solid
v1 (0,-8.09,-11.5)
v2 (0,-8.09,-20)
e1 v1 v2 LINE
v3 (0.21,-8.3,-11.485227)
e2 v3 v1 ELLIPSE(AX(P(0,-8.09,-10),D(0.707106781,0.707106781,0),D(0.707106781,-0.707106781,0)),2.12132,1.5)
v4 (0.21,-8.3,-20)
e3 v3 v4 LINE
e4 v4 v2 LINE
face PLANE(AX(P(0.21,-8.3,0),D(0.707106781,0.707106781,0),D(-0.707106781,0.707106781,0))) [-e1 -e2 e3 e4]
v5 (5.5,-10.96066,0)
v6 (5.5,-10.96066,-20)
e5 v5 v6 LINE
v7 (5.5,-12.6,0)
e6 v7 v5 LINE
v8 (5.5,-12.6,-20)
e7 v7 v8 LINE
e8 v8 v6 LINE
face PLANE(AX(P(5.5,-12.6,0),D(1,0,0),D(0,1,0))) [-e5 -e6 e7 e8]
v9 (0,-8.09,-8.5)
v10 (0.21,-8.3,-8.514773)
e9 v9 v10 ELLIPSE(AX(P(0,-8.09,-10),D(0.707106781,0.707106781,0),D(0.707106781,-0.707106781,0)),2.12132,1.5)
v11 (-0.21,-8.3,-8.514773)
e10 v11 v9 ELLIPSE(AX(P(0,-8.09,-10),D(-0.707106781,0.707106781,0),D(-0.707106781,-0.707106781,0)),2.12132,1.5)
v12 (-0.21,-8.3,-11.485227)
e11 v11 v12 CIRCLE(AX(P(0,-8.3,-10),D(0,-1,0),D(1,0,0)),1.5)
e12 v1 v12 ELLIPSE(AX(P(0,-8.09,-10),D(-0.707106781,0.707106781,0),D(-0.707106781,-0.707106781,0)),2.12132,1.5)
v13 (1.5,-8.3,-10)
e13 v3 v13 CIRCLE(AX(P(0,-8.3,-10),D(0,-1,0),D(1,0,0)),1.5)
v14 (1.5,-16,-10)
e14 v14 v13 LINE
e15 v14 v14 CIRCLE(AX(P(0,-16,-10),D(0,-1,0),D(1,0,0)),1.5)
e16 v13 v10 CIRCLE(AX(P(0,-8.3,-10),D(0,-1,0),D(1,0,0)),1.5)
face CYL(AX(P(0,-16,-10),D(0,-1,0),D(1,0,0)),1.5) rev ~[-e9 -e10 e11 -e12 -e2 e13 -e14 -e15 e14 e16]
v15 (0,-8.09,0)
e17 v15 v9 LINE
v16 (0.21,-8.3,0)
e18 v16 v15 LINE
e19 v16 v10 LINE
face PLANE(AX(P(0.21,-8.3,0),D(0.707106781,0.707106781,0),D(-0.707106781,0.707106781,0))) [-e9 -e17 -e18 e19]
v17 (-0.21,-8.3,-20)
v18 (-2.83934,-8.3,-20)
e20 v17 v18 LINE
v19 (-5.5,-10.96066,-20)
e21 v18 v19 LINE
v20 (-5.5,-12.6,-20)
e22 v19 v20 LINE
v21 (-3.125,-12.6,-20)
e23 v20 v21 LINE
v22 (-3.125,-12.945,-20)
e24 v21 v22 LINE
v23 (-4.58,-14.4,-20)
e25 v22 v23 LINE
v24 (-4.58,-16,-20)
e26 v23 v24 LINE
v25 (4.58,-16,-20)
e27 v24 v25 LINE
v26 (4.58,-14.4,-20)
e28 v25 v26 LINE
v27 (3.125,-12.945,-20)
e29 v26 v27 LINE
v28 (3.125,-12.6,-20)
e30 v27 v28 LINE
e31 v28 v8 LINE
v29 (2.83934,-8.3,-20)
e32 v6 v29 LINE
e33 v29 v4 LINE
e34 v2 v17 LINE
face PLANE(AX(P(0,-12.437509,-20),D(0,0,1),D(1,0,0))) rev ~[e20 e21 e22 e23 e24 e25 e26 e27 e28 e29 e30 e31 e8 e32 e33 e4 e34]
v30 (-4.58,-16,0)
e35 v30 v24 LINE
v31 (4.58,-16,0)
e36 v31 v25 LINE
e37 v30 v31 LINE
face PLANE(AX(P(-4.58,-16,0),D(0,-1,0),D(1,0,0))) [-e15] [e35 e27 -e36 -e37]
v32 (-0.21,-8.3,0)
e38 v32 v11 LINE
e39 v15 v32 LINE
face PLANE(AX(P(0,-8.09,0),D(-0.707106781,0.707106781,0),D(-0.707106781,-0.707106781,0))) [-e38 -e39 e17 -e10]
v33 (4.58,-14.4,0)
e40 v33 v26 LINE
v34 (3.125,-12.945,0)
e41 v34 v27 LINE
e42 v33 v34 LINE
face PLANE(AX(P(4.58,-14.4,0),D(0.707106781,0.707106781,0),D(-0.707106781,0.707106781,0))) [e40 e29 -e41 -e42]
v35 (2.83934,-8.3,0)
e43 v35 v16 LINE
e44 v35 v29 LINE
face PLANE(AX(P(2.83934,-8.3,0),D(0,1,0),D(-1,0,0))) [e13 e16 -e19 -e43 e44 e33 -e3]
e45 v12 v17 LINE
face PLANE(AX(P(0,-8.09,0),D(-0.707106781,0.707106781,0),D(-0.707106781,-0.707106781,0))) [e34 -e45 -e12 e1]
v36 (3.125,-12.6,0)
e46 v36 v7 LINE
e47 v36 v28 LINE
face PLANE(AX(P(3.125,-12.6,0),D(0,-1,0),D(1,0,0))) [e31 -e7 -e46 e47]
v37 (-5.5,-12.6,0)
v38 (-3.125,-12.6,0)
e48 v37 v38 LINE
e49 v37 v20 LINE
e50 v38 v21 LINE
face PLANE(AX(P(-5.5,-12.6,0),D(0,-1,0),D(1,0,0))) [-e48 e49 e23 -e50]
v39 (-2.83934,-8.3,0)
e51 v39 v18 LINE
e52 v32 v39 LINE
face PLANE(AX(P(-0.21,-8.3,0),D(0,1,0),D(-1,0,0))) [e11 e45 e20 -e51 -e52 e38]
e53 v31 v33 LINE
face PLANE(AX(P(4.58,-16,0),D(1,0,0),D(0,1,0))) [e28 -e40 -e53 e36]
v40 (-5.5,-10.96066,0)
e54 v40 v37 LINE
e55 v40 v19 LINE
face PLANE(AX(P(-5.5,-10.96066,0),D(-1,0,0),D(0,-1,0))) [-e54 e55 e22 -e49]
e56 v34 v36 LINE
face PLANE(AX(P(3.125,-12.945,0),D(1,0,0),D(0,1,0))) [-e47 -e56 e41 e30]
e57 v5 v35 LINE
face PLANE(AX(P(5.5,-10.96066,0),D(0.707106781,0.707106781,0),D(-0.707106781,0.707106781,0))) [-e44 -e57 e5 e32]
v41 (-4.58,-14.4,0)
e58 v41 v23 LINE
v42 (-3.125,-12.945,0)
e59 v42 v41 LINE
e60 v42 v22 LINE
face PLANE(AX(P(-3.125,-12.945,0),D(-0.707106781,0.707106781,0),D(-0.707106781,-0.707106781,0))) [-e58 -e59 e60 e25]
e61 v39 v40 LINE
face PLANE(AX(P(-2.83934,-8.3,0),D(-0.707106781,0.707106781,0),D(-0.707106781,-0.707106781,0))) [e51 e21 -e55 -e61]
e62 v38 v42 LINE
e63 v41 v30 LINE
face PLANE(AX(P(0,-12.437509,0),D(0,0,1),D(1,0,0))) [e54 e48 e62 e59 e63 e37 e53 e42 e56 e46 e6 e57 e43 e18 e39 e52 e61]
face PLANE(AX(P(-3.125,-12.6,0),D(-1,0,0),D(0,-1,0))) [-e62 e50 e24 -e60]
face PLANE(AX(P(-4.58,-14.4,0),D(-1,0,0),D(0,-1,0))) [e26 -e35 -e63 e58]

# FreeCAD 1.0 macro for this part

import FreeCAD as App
import Part
import Sketcher

V = App.Vector
Q = App.Units.Quantity


def add_polygon(sketch, points):
    """Adds a closed chain of lines whose ends are joined by coincident constraints."""
    first, n = sketch.GeometryCount, len(points)
    for a, b in zip(points, points[1:] + points[:1]):
        sketch.addGeometry(Part.LineSegment(App.Vector(*a, 0), App.Vector(*b, 0)), False)
    for i in range(n):
        sketch.addConstraint(Sketcher.Constraint("Coincident", first + i, 2, first + (i + 1) % n, 1))

doc = App.newDocument("Part")
body = doc.addObject("PartDesign::Body", "Body")

sketch1 = body.newObject("Sketcher::SketchObject", "Sketch")
sketch1.AttachmentSupport = (doc.getObject("XY_Plane"), [""])
sketch1.MapMode = "FlatFace"
add_polygon(sketch1, [(4.58, -16), (4.58, -14.4), (3.12, -12.95), (3.12, -12.6), (5.5, -12.6), (5.5, -10.96), (2.84, -8.3), (0.21, -8.3), (0, -8.09), (-0.21, -8.3), (-2.84, -8.3), (-5.5, -10.96), (-5.5, -12.6), (-3.12, -12.6), (-3.12, -12.95), (-4.58, -14.4), (-4.58, -16)])
sketch1.addConstraint(Sketcher.Constraint("Vertical", 0))
sketch1.addConstraint(Sketcher.Constraint("Vertical", 2))
sketch1.addConstraint(Sketcher.Constraint("Horizontal", 3))
sketch1.addConstraint(Sketcher.Constraint("Vertical", 4))
sketch1.addConstraint(Sketcher.Constraint("Horizontal", 6))
sketch1.addConstraint(Sketcher.Constraint("Horizontal", 9))
sketch1.addConstraint(Sketcher.Constraint("Vertical", 11))
sketch1.addConstraint(Sketcher.Constraint("Horizontal", 12))
sketch1.addConstraint(Sketcher.Constraint("Vertical", 13))
sketch1.addConstraint(Sketcher.Constraint("Vertical", 15))
sketch1.addConstraint(Sketcher.Constraint("Horizontal", 16))
sketch1.addConstraint(Sketcher.Constraint("Symmetric", 6, 2, 8, 2, -2))
sketch1.addConstraint(Sketcher.Constraint("Symmetric", 4, 2, 10, 2, -2))
sketch1.addConstraint(Sketcher.Constraint("Symmetric", 2, 2, 12, 2, -2))
sketch1.addConstraint(Sketcher.Constraint("Symmetric", 0, 2, 14, 2, -2))
sketch1.addConstraint(Sketcher.Constraint("PointOnObject", 7, 2, -2))
sketch1.addConstraint(Sketcher.Constraint("Parallel", 1, 5))
sketch1.addConstraint(Sketcher.Constraint("Parallel", 5, 7))
sketch1.addConstraint(Sketcher.Constraint("Perpendicular", 7, 8))
sketch1.addConstraint(Sketcher.Constraint("Parallel", 8, 10))
sketch1.addConstraint(Sketcher.Constraint("Parallel", 10, 14))
sketch1.addConstraint(Sketcher.Constraint("DistanceY", 0, 1, 0, 2, Q("1.6 mm")))
sketch1.addConstraint(Sketcher.Constraint("DistanceY", 15, 2, -1, 1, Q("16 mm")))
sketch1.addConstraint(Sketcher.Constraint("DistanceX", 16, 1, 16, 2, Q("9.16 mm")))
sketch1.addConstraint(Sketcher.Constraint("DistanceY", 2, 2, -1, 1, Q("12.6 mm")))
sketch1.addConstraint(Sketcher.Constraint("DistanceX", -1, 1, 3, 2, Q("5.5 mm")))
sketch1.addConstraint(Sketcher.Constraint("DistanceY", 5, 2, -1, 1, Q("8.3 mm")))
sketch1.addConstraint(Sketcher.Constraint("DistanceX", 3, 1, 3, 2, Q("2.375 mm")))
sketch1.addConstraint(Sketcher.Constraint("DistanceX", -1, 1, 6, 2, Q("0.21 mm")))
sketch1.addConstraint(Sketcher.Constraint("DistanceX", 6, 2, 6, 1, Q("2.62934 mm")))
pad1 = body.newObject("PartDesign::Pad", "Pad")
pad1.Profile = sketch1
pad1.Length = 20
pad1.Reversed = True

sketch2 = body.newObject("Sketcher::SketchObject", "Sketch001")
sketch2.AttachmentSupport = (doc.getObject("XZ_Plane"), [""])
sketch2.MapMode = "FlatFace"
sketch2.AttachmentOffset = App.Placement(V(0, 0, 16), App.Rotation())
sketch2.addGeometry(Part.Circle(V(0, -10, 0), V(0, 0, 1), 1.5), False)
sketch2.addConstraint(Sketcher.Constraint("PointOnObject", 0, 3, -2))
sketch2.addConstraint(Sketcher.Constraint("Diameter", 0, Q("3 mm")))
sketch2.addConstraint(Sketcher.Constraint("DistanceY", 0, 3, -1, 1, Q("10 mm")))
pocket1 = body.newObject("PartDesign::Pocket", "Pocket")
pocket1.Profile = sketch2
pocket1.Length = 25

doc.recompute()
